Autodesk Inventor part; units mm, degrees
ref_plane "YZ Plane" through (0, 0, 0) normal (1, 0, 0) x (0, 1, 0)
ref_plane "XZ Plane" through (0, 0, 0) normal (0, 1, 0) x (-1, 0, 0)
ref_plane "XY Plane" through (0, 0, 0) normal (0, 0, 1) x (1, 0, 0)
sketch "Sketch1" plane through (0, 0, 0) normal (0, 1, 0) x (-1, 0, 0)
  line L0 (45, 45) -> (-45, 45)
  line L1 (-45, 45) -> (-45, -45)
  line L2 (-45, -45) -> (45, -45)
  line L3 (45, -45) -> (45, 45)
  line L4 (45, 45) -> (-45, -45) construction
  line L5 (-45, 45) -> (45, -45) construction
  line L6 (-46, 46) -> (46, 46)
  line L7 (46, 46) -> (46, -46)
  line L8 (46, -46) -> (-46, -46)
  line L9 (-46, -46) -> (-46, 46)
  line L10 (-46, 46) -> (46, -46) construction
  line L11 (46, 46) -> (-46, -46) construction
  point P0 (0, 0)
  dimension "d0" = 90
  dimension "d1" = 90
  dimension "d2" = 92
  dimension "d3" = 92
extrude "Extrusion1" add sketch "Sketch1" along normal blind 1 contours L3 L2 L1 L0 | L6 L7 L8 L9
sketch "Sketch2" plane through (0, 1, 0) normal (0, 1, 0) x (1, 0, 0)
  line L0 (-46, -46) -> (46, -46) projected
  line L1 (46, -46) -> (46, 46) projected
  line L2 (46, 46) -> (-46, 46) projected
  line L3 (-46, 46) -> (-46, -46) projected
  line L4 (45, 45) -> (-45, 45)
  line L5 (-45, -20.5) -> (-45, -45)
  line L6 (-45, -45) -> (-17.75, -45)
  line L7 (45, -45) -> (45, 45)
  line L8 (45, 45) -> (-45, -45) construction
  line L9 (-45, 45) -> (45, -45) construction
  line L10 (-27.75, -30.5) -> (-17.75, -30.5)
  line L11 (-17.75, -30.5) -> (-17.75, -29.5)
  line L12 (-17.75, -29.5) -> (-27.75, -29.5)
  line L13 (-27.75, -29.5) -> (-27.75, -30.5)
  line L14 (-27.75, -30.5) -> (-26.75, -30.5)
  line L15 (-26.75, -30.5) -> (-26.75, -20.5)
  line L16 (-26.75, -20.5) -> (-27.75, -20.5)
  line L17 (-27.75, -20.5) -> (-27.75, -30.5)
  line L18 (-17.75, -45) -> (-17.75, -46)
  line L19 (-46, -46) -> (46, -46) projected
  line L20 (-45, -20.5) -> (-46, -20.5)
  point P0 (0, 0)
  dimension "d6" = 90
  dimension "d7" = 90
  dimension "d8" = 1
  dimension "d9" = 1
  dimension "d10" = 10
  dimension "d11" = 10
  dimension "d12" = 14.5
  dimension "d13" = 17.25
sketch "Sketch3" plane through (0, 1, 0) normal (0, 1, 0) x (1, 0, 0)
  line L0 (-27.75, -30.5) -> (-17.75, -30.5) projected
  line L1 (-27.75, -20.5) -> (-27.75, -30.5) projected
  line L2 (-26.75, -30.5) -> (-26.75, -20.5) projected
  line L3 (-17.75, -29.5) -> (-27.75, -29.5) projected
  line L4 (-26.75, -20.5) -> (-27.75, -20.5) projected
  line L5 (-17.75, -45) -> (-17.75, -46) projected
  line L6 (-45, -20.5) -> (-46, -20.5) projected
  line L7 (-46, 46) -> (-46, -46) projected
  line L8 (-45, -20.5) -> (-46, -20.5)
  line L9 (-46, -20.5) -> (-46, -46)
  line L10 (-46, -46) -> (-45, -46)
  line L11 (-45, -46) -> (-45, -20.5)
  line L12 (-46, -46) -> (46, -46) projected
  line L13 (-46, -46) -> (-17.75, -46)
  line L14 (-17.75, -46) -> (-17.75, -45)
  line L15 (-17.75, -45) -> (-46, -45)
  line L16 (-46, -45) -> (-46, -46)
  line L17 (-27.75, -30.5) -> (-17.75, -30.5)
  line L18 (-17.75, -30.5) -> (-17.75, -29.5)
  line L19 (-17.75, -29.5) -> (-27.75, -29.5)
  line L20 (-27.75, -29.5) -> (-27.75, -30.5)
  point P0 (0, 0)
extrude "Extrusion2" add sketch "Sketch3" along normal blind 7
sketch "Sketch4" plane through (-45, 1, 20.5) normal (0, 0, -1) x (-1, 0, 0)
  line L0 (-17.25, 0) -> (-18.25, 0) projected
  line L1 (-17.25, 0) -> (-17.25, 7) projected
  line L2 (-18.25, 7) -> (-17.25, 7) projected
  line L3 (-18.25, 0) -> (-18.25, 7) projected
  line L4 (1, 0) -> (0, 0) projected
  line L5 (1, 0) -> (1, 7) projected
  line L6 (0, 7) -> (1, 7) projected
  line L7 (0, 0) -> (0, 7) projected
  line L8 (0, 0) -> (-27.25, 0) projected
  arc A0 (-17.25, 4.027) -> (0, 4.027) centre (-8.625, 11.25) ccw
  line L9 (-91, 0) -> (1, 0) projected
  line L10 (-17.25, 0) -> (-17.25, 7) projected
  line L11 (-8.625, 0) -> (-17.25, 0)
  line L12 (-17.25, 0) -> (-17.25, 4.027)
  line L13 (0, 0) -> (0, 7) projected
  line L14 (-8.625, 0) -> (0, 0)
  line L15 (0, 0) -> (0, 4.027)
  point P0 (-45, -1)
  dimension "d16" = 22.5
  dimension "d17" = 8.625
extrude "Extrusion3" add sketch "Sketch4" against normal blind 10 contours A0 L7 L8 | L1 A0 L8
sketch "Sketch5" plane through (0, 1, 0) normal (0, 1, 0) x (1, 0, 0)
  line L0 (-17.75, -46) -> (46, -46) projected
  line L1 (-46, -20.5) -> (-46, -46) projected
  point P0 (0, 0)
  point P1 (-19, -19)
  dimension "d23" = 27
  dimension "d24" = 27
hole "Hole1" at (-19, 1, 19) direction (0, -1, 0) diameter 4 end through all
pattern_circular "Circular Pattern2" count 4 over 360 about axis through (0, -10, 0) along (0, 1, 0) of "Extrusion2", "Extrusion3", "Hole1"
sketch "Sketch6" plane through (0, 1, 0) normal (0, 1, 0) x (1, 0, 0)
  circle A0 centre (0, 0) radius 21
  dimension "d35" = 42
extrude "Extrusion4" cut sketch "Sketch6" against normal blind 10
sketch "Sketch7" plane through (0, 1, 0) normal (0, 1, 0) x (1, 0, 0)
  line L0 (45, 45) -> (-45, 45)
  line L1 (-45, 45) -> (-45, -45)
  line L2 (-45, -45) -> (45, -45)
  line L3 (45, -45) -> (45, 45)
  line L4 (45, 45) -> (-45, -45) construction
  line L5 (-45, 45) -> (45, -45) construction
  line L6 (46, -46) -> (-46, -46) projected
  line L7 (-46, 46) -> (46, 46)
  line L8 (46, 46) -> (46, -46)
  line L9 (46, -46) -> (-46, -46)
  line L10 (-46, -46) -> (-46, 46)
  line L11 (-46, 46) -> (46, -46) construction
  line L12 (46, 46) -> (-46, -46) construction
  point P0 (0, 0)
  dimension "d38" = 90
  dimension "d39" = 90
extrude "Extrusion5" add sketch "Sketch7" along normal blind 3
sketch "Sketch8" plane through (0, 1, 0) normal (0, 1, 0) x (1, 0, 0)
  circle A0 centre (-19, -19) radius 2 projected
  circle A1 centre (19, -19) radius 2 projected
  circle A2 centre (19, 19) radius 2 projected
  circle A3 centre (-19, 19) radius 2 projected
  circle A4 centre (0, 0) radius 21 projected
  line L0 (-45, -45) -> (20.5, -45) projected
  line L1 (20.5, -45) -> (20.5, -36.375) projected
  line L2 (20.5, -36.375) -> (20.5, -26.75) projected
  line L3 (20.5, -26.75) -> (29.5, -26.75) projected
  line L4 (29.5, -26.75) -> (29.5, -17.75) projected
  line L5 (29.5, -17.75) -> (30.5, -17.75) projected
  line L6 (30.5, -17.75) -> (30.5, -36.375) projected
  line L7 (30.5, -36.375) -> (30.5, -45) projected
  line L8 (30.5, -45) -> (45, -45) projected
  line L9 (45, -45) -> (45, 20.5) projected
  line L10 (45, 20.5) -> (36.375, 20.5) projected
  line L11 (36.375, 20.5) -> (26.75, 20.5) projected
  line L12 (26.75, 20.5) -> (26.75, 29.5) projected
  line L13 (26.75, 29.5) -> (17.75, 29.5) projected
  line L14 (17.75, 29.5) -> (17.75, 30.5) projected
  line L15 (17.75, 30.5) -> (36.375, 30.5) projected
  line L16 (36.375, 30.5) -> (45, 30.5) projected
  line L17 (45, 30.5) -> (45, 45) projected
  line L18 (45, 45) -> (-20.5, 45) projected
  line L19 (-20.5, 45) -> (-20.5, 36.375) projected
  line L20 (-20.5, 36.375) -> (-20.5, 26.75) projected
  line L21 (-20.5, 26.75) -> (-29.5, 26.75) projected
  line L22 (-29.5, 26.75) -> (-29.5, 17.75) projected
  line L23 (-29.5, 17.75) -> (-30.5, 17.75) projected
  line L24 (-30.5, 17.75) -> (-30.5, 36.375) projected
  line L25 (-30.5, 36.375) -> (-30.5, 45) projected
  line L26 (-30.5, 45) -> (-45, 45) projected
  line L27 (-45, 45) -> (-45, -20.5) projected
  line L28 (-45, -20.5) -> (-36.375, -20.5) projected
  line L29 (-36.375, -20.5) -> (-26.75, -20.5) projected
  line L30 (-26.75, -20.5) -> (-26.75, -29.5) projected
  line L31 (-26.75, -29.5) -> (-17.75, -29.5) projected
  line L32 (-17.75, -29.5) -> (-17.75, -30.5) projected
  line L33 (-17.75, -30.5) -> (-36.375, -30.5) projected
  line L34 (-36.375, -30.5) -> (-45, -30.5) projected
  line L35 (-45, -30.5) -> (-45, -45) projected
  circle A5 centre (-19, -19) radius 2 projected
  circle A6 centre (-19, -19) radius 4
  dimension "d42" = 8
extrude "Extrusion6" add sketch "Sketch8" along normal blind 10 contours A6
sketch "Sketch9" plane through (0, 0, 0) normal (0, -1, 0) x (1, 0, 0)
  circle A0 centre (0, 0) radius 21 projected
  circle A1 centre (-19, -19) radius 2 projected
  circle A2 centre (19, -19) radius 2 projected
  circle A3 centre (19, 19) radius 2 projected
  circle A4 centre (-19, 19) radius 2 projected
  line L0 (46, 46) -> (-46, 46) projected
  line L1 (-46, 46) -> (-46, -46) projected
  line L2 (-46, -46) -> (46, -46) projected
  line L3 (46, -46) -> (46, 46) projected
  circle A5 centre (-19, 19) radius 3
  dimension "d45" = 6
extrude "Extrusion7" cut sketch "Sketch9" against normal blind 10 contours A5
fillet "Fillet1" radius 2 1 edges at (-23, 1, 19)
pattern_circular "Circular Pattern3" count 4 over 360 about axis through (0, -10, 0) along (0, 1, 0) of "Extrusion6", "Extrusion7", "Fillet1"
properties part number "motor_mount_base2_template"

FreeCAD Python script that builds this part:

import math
import FreeCAD as App
import Part
import Sketcher

V = App.Vector


def edges_at(feature, points):
    """Names of the edges that pass closest to the given points."""
    edges = feature.Shape.Edges
    near = lambda p: min(range(len(edges)), key=lambda i: edges[i].distToShape(Part.Vertex(*p))[0])
    return sorted({f"Edge{near(p) + 1}" for p in points})

doc = App.newDocument("Part")
body = doc.addObject("PartDesign::Body", "Body")

sketch1 = body.newObject("Sketcher::SketchObject", "Sketch")
sketch1.AttachmentSupport = (doc.getObject("XZ_Plane"), [""])
sketch1.MapMode = "FlatFace"
sketch1.addGeometry([
    Part.LineSegment(V(-46, 46, 0), V(46, 46, 0)),
    Part.LineSegment(V(46, 46, 0), V(46, -46, 0)),
    Part.LineSegment(V(46, -46, 0), V(-46, -46, 0)),
    Part.LineSegment(V(-46, -46, 0), V(-46, 46, 0)),
], False)
sketch1.addConstraint([
    Sketcher.Constraint("Coincident", 0, 2, 1, 1),
    Sketcher.Constraint("Coincident", 1, 2, 2, 1),
    Sketcher.Constraint("Coincident", 2, 2, 3, 1),
    Sketcher.Constraint("Coincident", 3, 2, 0, 1),
    Sketcher.Constraint("Horizontal", 0),
    Sketcher.Constraint("Vertical", 1),
    Sketcher.Constraint("Horizontal", 2),
    Sketcher.Constraint("Vertical", 3),
    Sketcher.Constraint("Symmetric", 0, 2, 2, 2, -1, 1),
    Sketcher.Constraint("Equal", 2, 1),
    Sketcher.Constraint("DistanceX", 0, 1, 0, 2, 92.0),
])
pad1 = body.newObject("PartDesign::Pad", "Pad")
pad1.Profile = sketch1
pad1.Length = 1
pad1.Reversed = True

sketch2 = body.newObject("Sketcher::SketchObject", "Sketch001")
sketch2.AttachmentSupport = (doc.getObject("XZ_Plane"), [""])
sketch2.MapMode = "FlatFace"
sketch2.AttachmentOffset = App.Placement(V(0, 0, -1), App.Rotation())
sketch2.addGeometry([
    Part.LineSegment(V(-27.8, 30.5, 0), V(-17.8, 30.5, 0)),
    Part.LineSegment(V(-17.8, 30.5, 0), V(-17.8, 29.5, 0)),
    Part.LineSegment(V(-17.8, 29.5, 0), V(-26.8, 29.5, 0)),
    Part.LineSegment(V(-26.8, 29.5, 0), V(-26.8, 20.5, 0)),
    Part.LineSegment(V(-26.8, 20.5, 0), V(-27.8, 20.5, 0)),
    Part.LineSegment(V(-27.8, 20.5, 0), V(-27.8, 30.5, 0)),
    Part.LineSegment(V(-17.8, 46, 0), V(-17.8, 45, 0)),
    Part.LineSegment(V(-17.8, 45, 0), V(-45, 45, 0)),
    Part.LineSegment(V(-45, 45, 0), V(-45, 20.5, 0)),
    Part.LineSegment(V(-45, 20.5, 0), V(-46, 20.5, 0)),
    Part.LineSegment(V(-46, 20.5, 0), V(-46, 46, 0)),
    Part.LineSegment(V(-46, 46, 0), V(-17.8, 46, 0)),
], False)
sketch2.addConstraint([
    Sketcher.Constraint("Coincident", 0, 2, 1, 1),
    Sketcher.Constraint("Coincident", 1, 2, 2, 1),
    Sketcher.Constraint("Coincident", 2, 2, 3, 1),
    Sketcher.Constraint("Coincident", 3, 2, 4, 1),
    Sketcher.Constraint("Coincident", 4, 2, 5, 1),
    Sketcher.Constraint("Coincident", 5, 2, 0, 1),
    Sketcher.Constraint("Coincident", 6, 2, 7, 1),
    Sketcher.Constraint("Coincident", 7, 2, 8, 1),
    Sketcher.Constraint("Coincident", 8, 2, 9, 1),
    Sketcher.Constraint("Coincident", 9, 2, 10, 1),
    Sketcher.Constraint("Coincident", 10, 2, 11, 1),
    Sketcher.Constraint("Coincident", 11, 2, 6, 1),
    Sketcher.Constraint("Horizontal", 0),
    Sketcher.Constraint("Vertical", 1),
    Sketcher.Constraint("Horizontal", 2),
    Sketcher.Constraint("Vertical", 3),
    Sketcher.Constraint("Horizontal", 4),
    Sketcher.Constraint("Vertical", 5),
    Sketcher.Constraint("Vertical", 6),
    Sketcher.Constraint("Horizontal", 7),
    Sketcher.Constraint("Vertical", 8),
    Sketcher.Constraint("Horizontal", 9),
    Sketcher.Constraint("Vertical", 10),
    Sketcher.Constraint("Horizontal", 11),
    Sketcher.Constraint("Horizontal", 4, 2, 8, 2),
    Sketcher.Constraint("Vertical", 1, 2, 6, 2),
    Sketcher.Constraint("Equal", 4, 9),
    Sketcher.Constraint("Equal", 9, 1),
    Sketcher.Constraint("Equal", 2, 3),
    Sketcher.Constraint("Equal", 1, 6),
    Sketcher.Constraint("DistanceX", 0, 1, 0, 2, 10.0),
    Sketcher.Constraint("DistanceX", 2, 2, 2, 1, 9.0),
    Sketcher.Constraint("DistanceY", 8, 2, 8, 1, 24.5),
    Sketcher.Constraint("DistanceY", -1, 1, 6, 2, 45.0),
    Sketcher.Constraint("DistanceX", 7, 2, -1, 1, 45.0),
    Sketcher.Constraint("DistanceX", 7, 2, 7, 1, 27.25),
])
pad2 = body.newObject("PartDesign::Pad", "Pad001")
pad2.Profile = sketch2
pad2.Length = 7
pad2.Reversed = True

sketch3 = body.newObject("Sketcher::SketchObject", "Sketch002")
sketch3.AttachmentSupport = (doc.getObject("XY_Plane"), [""])
sketch3.MapMode = "FlatFace"
sketch3.AttachmentOffset = App.Placement(V(0, 0, 20.5), App.Rotation())
sketch3.addGeometry([
    Part.ArcOfCircle(Part.Circle(V(-36.4, 12.2, 0), V(0, 0, 1), 11.2), math.radians(-140), math.radians(-90)),
    Part.LineSegment(V(-36.4, 1, 0), V(-45, 1, 0)),
    Part.LineSegment(V(-45, 1, 0), V(-45, 5, 0)),
    Part.LineSegment(V(-27.8, 5, 0), V(-27.8, 1, 0)),
    Part.LineSegment(V(-27.8, 1, 0), V(-36.4, 1, 0)),
    Part.ArcOfCircle(Part.Circle(V(-36.4, 12.2, 0), V(0, 0, 1), 11.2), math.radians(-90), math.radians(-40)),
], False)
sketch3.addConstraint([
    Sketcher.Constraint("Tangent", 0, 2, 1, 1),
    Sketcher.Constraint("Coincident", 1, 2, 2, 1),
    Sketcher.Constraint("Coincident", 2, 2, 0, 1),
    Sketcher.Constraint("Coincident", 3, 2, 4, 1),
    Sketcher.Constraint("Tangent", 4, 2, 5, 1),
    Sketcher.Constraint("Coincident", 5, 2, 3, 1),
    Sketcher.Constraint("Horizontal", 1),
    Sketcher.Constraint("Vertical", 2),
    Sketcher.Constraint("Vertical", 3),
    Sketcher.Constraint("Horizontal", 4),
    Sketcher.Constraint("Coincident", 5, 3, 0, 3),
    Sketcher.Constraint("Equal", 0, 5),
    Sketcher.Constraint("Horizontal", 2, 2, 5, 2),
    Sketcher.Constraint("Radius", 0, 11.25),
    Sketcher.Constraint("DistanceX", 1, 2, 1, 1, 8.625),
    Sketcher.Constraint("DistanceY", -1, 1, 0, 2, 1.0),
    Sketcher.Constraint("DistanceX", 1, 2, -1, 1, 45.0),
])
pad3 = body.newObject("PartDesign::Pad", "Pad002")
pad3.Profile = sketch3
pad3.Length = 10

sketch4 = body.newObject("Sketcher::SketchObject", "Sketch003")
sketch4.AttachmentSupport = (doc.getObject("XZ_Plane"), [""])
sketch4.MapMode = "FlatFace"
sketch4.AttachmentOffset = App.Placement(V(0, 0, -1), App.Rotation())
sketch4.addGeometry(Part.Circle(V(-19, 19, 0), V(0, 0, 1), 2), False)
sketch4.addConstraint([
    Sketcher.Constraint("Diameter", 0, 4.0),
    Sketcher.Constraint("DistanceX", 0, 3, -1, 1, 19.0),
    Sketcher.Constraint("DistanceY", -1, 1, 0, 3, 19.0),
])
doc.recompute()
hole = body.newObject("PartDesign::Hole", "Hole")
hole.Profile = sketch4
hole.ThreadType = "None"
hole.Diameter = 4
hole.DepthType = "ThroughAll"
hole.Reversed = True
doc.recompute()

polarpattern = body.newObject("PartDesign::PolarPattern", "PolarPattern")
polarpattern.Originals = [pad2, pad3, hole]
polarpattern.Axis = (doc.getObject("Y_Axis"), [""])
polarpattern.Angle = 360
polarpattern.Occurrences = 4
body.Tip = polarpattern

sketch5 = body.newObject("Sketcher::SketchObject", "Sketch004")
sketch5.AttachmentSupport = (doc.getObject("XZ_Plane"), [""])
sketch5.MapMode = "FlatFace"
sketch5.AttachmentOffset = App.Placement(V(0, 0, -1), App.Rotation())
sketch5.addGeometry(Part.Circle(V(0, 0, 0), V(0, 0, 1), 21), False)
sketch5.addConstraint([
    Sketcher.Constraint("Coincident", 0, 3, -1, 1),
    Sketcher.Constraint("Diameter", 0, 42.0),
])
pocket1 = body.newObject("PartDesign::Pocket", "Pocket")
pocket1.Profile = sketch5
pocket1.Length = 10
pocket1.Reversed = True

sketch6 = body.newObject("Sketcher::SketchObject", "Sketch005")
sketch6.AttachmentSupport = (doc.getObject("XZ_Plane"), [""])
sketch6.MapMode = "FlatFace"
sketch6.AttachmentOffset = App.Placement(V(0, 0, -1), App.Rotation())
sketch6.addGeometry([
    Part.LineSegment(V(-46, 46, 0), V(46, 46, 0)),
    Part.LineSegment(V(46, 46, 0), V(46, -46, 0)),
    Part.LineSegment(V(46, -46, 0), V(-46, -46, 0)),
    Part.LineSegment(V(-46, -46, 0), V(-46, 46, 0)),
    Part.LineSegment(V(-45, -45, 0), V(45, -45, 0)),
    Part.LineSegment(V(45, -45, 0), V(45, 45, 0)),
    Part.LineSegment(V(45, 45, 0), V(-45, 45, 0)),
    Part.LineSegment(V(-45, 45, 0), V(-45, -45, 0)),
], False)
sketch6.addConstraint([
    Sketcher.Constraint("Coincident", 0, 2, 1, 1),
    Sketcher.Constraint("Coincident", 1, 2, 2, 1),
    Sketcher.Constraint("Coincident", 2, 2, 3, 1),
    Sketcher.Constraint("Coincident", 3, 2, 0, 1),
    Sketcher.Constraint("Coincident", 4, 2, 5, 1),
    Sketcher.Constraint("Coincident", 5, 2, 6, 1),
    Sketcher.Constraint("Coincident", 6, 2, 7, 1),
    Sketcher.Constraint("Coincident", 7, 2, 4, 1),
    Sketcher.Constraint("Horizontal", 0),
    Sketcher.Constraint("Vertical", 1),
    Sketcher.Constraint("Horizontal", 2),
    Sketcher.Constraint("Vertical", 3),
    Sketcher.Constraint("Horizontal", 4),
    Sketcher.Constraint("Vertical", 5),
    Sketcher.Constraint("Horizontal", 6),
    Sketcher.Constraint("Vertical", 7),
    Sketcher.Constraint("Symmetric", 0, 2, 2, 2, -1, 1),
    Sketcher.Constraint("Symmetric", 4, 2, 6, 2, -1, 1),
    Sketcher.Constraint("Equal", 2, 1),
    Sketcher.Constraint("Equal", 6, 5),
    Sketcher.Constraint("DistanceX", 4, 1, 4, 2, 90.0),
    Sketcher.Constraint("DistanceX", 0, 1, 0, 2, 92.0),
])
pad4 = body.newObject("PartDesign::Pad", "Pad003")
pad4.Profile = sketch6
pad4.Length = 3
pad4.Reversed = True

sketch7 = body.newObject("Sketcher::SketchObject", "Sketch006")
sketch7.AttachmentSupport = (doc.getObject("XZ_Plane"), [""])
sketch7.MapMode = "FlatFace"
sketch7.AttachmentOffset = App.Placement(V(0, 0, -1), App.Rotation())
sketch7.addGeometry([
    Part.Circle(V(-19, 19, 0), V(0, 0, 1), 4),
    Part.Circle(V(-19, 19, 0), V(0, 0, 1), 2),
], False)
sketch7.addConstraint([
    Sketcher.Constraint("Coincident", 1, 3, 0, 3),
    Sketcher.Constraint("Diameter", 0, 8.0),
    Sketcher.Constraint("Diameter", 1, 4.0),
    Sketcher.Constraint("DistanceX", 0, 3, -1, 1, 19.0),
    Sketcher.Constraint("DistanceY", -1, 1, 0, 3, 19.0),
])
pad5 = body.newObject("PartDesign::Pad", "Pad004")
pad5.Profile = sketch7
pad5.Length = 10
pad5.Reversed = True

sketch8 = body.newObject("Sketcher::SketchObject", "Sketch007")
sketch8.AttachmentSupport = (doc.getObject("XZ_Plane"), [""])
sketch8.MapMode = "FlatFace"
sketch8.addGeometry([
    Part.Circle(V(-19, 19, 0), V(0, 0, 1), 3),
    Part.Circle(V(-19, 19, 0), V(0, 0, 1), 2),
], False)
sketch8.addConstraint([
    Sketcher.Constraint("Coincident", 1, 3, 0, 3),
    Sketcher.Constraint("Diameter", 0, 6.0),
    Sketcher.Constraint("Diameter", 1, 4.0),
    Sketcher.Constraint("DistanceX", 0, 3, -1, 1, 19.0),
    Sketcher.Constraint("DistanceY", -1, 1, 0, 3, 19.0),
])
pocket2 = body.newObject("PartDesign::Pocket", "Pocket001")
pocket2.Profile = sketch8
pocket2.Length = 10
doc.recompute()

fillet = body.newObject("PartDesign::Fillet", "Fillet")
fillet.Base = (pocket2, edges_at(pocket2, [(-23, 1, 19)]))
fillet.Radius = 2
doc.recompute()

polarpattern2 = body.newObject("PartDesign::PolarPattern", "PolarPattern001")
polarpattern2.Originals = [pad5, pocket2, fillet]
polarpattern2.Axis = (doc.getObject("Y_Axis"), [""])
polarpattern2.Angle = 360
polarpattern2.Occurrences = 4
body.Tip = polarpattern2

doc.recompute()
